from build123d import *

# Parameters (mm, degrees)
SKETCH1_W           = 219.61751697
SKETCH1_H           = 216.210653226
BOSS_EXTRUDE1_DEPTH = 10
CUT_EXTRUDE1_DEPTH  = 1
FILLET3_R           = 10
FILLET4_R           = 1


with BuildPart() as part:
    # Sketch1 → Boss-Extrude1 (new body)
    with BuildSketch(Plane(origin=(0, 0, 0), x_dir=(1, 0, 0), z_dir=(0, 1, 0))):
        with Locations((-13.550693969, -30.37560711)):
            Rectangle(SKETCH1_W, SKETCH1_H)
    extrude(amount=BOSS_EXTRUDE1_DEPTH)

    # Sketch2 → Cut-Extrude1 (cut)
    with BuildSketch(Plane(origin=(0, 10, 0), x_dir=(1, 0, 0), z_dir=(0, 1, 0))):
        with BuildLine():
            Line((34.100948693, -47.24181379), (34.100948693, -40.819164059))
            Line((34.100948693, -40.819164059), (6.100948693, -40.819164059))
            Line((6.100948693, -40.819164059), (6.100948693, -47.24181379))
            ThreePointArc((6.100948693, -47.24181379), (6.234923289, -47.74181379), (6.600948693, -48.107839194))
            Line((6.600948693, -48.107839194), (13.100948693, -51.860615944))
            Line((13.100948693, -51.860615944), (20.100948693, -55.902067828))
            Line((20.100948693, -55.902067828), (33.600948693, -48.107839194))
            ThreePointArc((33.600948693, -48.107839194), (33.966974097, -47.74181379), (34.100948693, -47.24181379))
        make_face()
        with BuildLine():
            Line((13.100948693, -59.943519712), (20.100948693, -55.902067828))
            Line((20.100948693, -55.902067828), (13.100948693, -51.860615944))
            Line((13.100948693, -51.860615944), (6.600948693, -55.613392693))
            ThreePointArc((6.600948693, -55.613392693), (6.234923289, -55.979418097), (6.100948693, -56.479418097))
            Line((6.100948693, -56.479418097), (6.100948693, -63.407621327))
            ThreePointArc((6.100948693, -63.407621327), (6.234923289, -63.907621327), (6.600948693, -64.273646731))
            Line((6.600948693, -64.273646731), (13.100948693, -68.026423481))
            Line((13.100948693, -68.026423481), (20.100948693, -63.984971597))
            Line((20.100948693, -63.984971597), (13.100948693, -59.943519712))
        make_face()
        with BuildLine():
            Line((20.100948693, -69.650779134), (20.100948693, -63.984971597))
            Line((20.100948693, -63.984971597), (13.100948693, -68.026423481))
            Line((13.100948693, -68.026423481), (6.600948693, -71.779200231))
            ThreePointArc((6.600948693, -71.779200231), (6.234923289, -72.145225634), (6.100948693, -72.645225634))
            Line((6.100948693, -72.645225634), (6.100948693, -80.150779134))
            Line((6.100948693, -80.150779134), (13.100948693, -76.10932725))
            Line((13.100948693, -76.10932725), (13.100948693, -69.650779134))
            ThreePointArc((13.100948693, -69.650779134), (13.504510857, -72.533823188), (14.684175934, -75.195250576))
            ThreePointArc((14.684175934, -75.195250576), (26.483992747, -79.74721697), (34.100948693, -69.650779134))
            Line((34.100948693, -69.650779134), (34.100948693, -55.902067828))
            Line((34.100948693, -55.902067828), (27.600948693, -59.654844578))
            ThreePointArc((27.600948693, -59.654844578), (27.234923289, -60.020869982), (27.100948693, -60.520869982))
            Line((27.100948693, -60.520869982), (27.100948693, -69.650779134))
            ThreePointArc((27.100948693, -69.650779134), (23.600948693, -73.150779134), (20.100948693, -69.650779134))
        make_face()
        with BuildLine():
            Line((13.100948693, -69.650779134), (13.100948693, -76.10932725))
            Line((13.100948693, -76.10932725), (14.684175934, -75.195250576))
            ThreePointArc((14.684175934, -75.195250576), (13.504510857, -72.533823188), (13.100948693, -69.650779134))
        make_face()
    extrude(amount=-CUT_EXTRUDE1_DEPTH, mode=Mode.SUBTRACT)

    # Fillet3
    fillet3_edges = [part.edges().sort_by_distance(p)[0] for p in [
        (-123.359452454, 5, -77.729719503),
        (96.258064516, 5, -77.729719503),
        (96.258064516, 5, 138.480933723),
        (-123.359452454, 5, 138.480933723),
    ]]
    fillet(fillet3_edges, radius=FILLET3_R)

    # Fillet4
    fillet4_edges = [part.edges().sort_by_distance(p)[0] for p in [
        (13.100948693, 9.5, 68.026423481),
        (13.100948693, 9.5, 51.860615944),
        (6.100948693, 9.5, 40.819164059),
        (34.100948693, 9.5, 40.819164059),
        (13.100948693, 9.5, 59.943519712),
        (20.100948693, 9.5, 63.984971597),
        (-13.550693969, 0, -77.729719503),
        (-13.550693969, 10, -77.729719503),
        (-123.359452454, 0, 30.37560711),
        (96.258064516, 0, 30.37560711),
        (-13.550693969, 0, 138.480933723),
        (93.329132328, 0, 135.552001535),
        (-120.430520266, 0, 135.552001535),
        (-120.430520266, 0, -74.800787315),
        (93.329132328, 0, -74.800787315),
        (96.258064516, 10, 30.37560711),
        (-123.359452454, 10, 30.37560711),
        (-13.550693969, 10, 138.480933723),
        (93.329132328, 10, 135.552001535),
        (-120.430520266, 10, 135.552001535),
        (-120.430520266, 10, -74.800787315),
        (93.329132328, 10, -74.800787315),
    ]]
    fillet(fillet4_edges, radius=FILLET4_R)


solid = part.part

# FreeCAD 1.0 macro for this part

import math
import FreeCAD as App
import Part
import Sketcher
Q = App.Units.Quantity


def edges_at(feature, points):
    """Names of the edges that pass closest to the given points."""
    edges = feature.Shape.Edges
    near = lambda p: min(range(len(edges)), key=lambda i: edges[i].distToShape(Part.Vertex(*p))[0])
    return sorted({f"Edge{near(p) + 1}" for p in points})

doc = App.newDocument("Part")
body = doc.addObject("PartDesign::Body", "Body")

# Sketch on XZ plane
sketch1 = body.newObject("Sketcher::SketchObject", "Sketch")
sketch1.AttachmentSupport = (doc.getObject("XZ_Plane"), [""])
sketch1.MapMode = "FlatFace"
sketch1.addGeometry(Part.LineSegment(App.Vector(-123.359452, -77.72972, 0), App.Vector(-123.359452, 138.480934, 0)), False)
sketch1.addGeometry(Part.LineSegment(App.Vector(-123.359452, 138.480934, 0), App.Vector(96.258065, 138.480934, 0)), False)
sketch1.addGeometry(Part.LineSegment(App.Vector(96.258065, 138.480934, 0), App.Vector(96.258065, -77.72972, 0)), False)
sketch1.addGeometry(Part.LineSegment(App.Vector(96.258065, -77.72972, 0), App.Vector(-123.359452, -77.72972, 0)), False)
sketch1.addConstraint(Sketcher.Constraint("Coincident", 0, 2, 1, 1))
sketch1.addConstraint(Sketcher.Constraint("Coincident", 1, 2, 2, 1))
sketch1.addConstraint(Sketcher.Constraint("Coincident", 2, 2, 3, 1))
sketch1.addConstraint(Sketcher.Constraint("Coincident", 3, 2, 0, 1))
sketch1.addConstraint(Sketcher.Constraint("Vertical", 0))
sketch1.addConstraint(Sketcher.Constraint("Horizontal", 1))
sketch1.addConstraint(Sketcher.Constraint("Vertical", 2))
sketch1.addConstraint(Sketcher.Constraint("Horizontal", 3))
sketch1.addConstraint(Sketcher.Constraint("DistanceX", 1, 1, 1, 2, 219.617517))
sketch1.addConstraint(Sketcher.Constraint("DistanceY", 0, 1, 0, 2, 216.210653))
sketch1.addConstraint(Sketcher.Constraint("DistanceY", 2, 2, -1, 1, 77.72972))
sketch1.addConstraint(Sketcher.Constraint("DistanceX", 0, 2, -1, 1, 123.359452))
pad1 = body.newObject("PartDesign::Pad", "Pad")
pad1.Profile = sketch1
pad1.Length = 10
pad1.Reversed = True

# Sketch on XZ plane
sketch2 = body.newObject("Sketcher::SketchObject", "Sketch001")
sketch2.AttachmentSupport = (doc.getObject("XZ_Plane"), [""])
sketch2.MapMode = "FlatFace"
sketch2.AttachmentOffset = App.Placement(App.Vector(0, 0, -10), App.Rotation())
sketch2.addGeometry(Part.LineSegment(App.Vector(34.100949, 47.241814, 0), App.Vector(34.100949, 40.819164, 0)), False)
sketch2.addGeometry(Part.LineSegment(App.Vector(34.100949, 40.819164, 0), App.Vector(6.100949, 40.819164, 0)), False)
sketch2.addGeometry(Part.LineSegment(App.Vector(6.100949, 40.819164, 0), App.Vector(6.100949, 47.241814, 0)), False)
sketch2.addGeometry(Part.ArcOfCircle(Part.Circle(App.Vector(7.100949, 47.241814, 0), App.Vector(0, 0, 1), 1), math.radians(120), math.radians(180)), False)
sketch2.addGeometry(Part.LineSegment(App.Vector(6.600949, 48.107839, 0), App.Vector(13.100949, 51.860616, 0)), False)
sketch2.addGeometry(Part.LineSegment(App.Vector(13.100949, 51.860616, 0), App.Vector(6.600949, 55.613393, 0)), False)
sketch2.addGeometry(Part.ArcOfCircle(Part.Circle(App.Vector(7.100949, 56.479418, 0), App.Vector(0, 0, 1), 1), math.radians(180), math.radians(240)), False)
sketch2.addGeometry(Part.LineSegment(App.Vector(6.100949, 56.479418, 0), App.Vector(6.100949, 63.407621, 0)), False)
sketch2.addGeometry(Part.ArcOfCircle(Part.Circle(App.Vector(7.100949, 63.407621, 0), App.Vector(0, 0, 1), 1), math.radians(120), math.radians(180)), False)
sketch2.addGeometry(Part.LineSegment(App.Vector(6.600949, 64.273647, 0), App.Vector(13.100949, 68.026423, 0)), False)
sketch2.addGeometry(Part.LineSegment(App.Vector(13.100949, 68.026423, 0), App.Vector(6.600949, 71.7792, 0)), False)
sketch2.addGeometry(Part.ArcOfCircle(Part.Circle(App.Vector(7.100949, 72.645226, 0), App.Vector(0, 0, 1), 1), math.radians(180), math.radians(240)), False)
sketch2.addGeometry(Part.LineSegment(App.Vector(6.100949, 72.645226, 0), App.Vector(6.100949, 80.150779, 0)), False)
sketch2.addGeometry(Part.LineSegment(App.Vector(6.100949, 80.150779, 0), App.Vector(13.100949, 76.109327, 0)), False)
sketch2.addGeometry(Part.LineSegment(App.Vector(13.100949, 76.109327, 0), App.Vector(14.684176, 75.195251, 0)), False)
sketch2.addGeometry(Part.ArcOfCircle(Part.Circle(App.Vector(23.600949, 69.650779, 0), App.Vector(0, 0, 1), 10.5), math.radians(0), math.radians(148.126549)), False)
sketch2.addGeometry(Part.LineSegment(App.Vector(34.100949, 69.650779, 0), App.Vector(34.100949, 55.902068, 0)), False)
sketch2.addGeometry(Part.LineSegment(App.Vector(34.100949, 55.902068, 0), App.Vector(27.600949, 59.654845, 0)), False)
sketch2.addGeometry(Part.ArcOfCircle(Part.Circle(App.Vector(28.100949, 60.52087, 0), App.Vector(0, 0, 1), 1), math.radians(180), math.radians(240)), False)
sketch2.addGeometry(Part.LineSegment(App.Vector(27.100949, 60.52087, 0), App.Vector(27.100949, 69.650779, 0)), False)
sketch2.addGeometry(Part.ArcOfCircle(Part.Circle(App.Vector(23.600949, 69.650779, 0), App.Vector(0, 0, 1), 3.5), math.radians(0), math.radians(180)), False)
sketch2.addGeometry(Part.LineSegment(App.Vector(20.100949, 69.650779, 0), App.Vector(20.100949, 63.984972, 0)), False)
sketch2.addGeometry(Part.LineSegment(App.Vector(20.100949, 63.984972, 0), App.Vector(13.100949, 59.94352, 0)), False)
sketch2.addGeometry(Part.LineSegment(App.Vector(13.100949, 59.94352, 0), App.Vector(20.100949, 55.902068, 0)), False)
sketch2.addGeometry(Part.LineSegment(App.Vector(20.100949, 55.902068, 0), App.Vector(33.600949, 48.107839, 0)), False)
sketch2.addGeometry(Part.ArcOfCircle(Part.Circle(App.Vector(33.100949, 47.241814, 0), App.Vector(0, 0, 1), 1), math.radians(0), math.radians(60)), False)
sketch2.addConstraint(Sketcher.Constraint("Coincident", 0, 2, 1, 1))
sketch2.addConstraint(Sketcher.Constraint("Coincident", 1, 2, 2, 1))
sketch2.addConstraint(Sketcher.Constraint("Tangent", 2, 2, 3, 2))
sketch2.addConstraint(Sketcher.Constraint("Tangent", 3, 1, 4, 1))
sketch2.addConstraint(Sketcher.Constraint("Coincident", 4, 2, 5, 1))
sketch2.addConstraint(Sketcher.Constraint("Tangent", 5, 2, 6, 2))
sketch2.addConstraint(Sketcher.Constraint("Tangent", 6, 1, 7, 1))
sketch2.addConstraint(Sketcher.Constraint("Tangent", 7, 2, 8, 2))
sketch2.addConstraint(Sketcher.Constraint("Tangent", 8, 1, 9, 1))
sketch2.addConstraint(Sketcher.Constraint("Coincident", 9, 2, 10, 1))
sketch2.addConstraint(Sketcher.Constraint("Tangent", 10, 2, 11, 2))
sketch2.addConstraint(Sketcher.Constraint("Tangent", 11, 1, 12, 1))
sketch2.addConstraint(Sketcher.Constraint("Coincident", 12, 2, 13, 1))
sketch2.addConstraint(Sketcher.Constraint("Coincident", 13, 2, 14, 1))
sketch2.addConstraint(Sketcher.Constraint("Coincident", 14, 2, 15, 2))
sketch2.addConstraint(Sketcher.Constraint("Tangent", 15, 1, 16, 1))
sketch2.addConstraint(Sketcher.Constraint("Coincident", 16, 2, 17, 1))
sketch2.addConstraint(Sketcher.Constraint("Tangent", 17, 2, 18, 2))
sketch2.addConstraint(Sketcher.Constraint("Tangent", 18, 1, 19, 1))
sketch2.addConstraint(Sketcher.Constraint("Tangent", 19, 2, 20, 1))
sketch2.addConstraint(Sketcher.Constraint("Tangent", 20, 2, 21, 1))
sketch2.addConstraint(Sketcher.Constraint("Coincident", 21, 2, 22, 1))
sketch2.addConstraint(Sketcher.Constraint("Coincident", 22, 2, 23, 1))
sketch2.addConstraint(Sketcher.Constraint("Coincident", 23, 2, 24, 1))
sketch2.addConstraint(Sketcher.Constraint("Tangent", 24, 2, 25, 2))
sketch2.addConstraint(Sketcher.Constraint("Tangent", 25, 1, 0, 1))
sketch2.addConstraint(Sketcher.Constraint("Vertical", 0))
sketch2.addConstraint(Sketcher.Constraint("Horizontal", 1))
sketch2.addConstraint(Sketcher.Constraint("Vertical", 2))
sketch2.addConstraint(Sketcher.Constraint("Vertical", 7))
sketch2.addConstraint(Sketcher.Constraint("Vertical", 12))
sketch2.addConstraint(Sketcher.Constraint("Vertical", 16))
sketch2.addConstraint(Sketcher.Constraint("Vertical", 19))
sketch2.addConstraint(Sketcher.Constraint("Vertical", 21))
sketch2.addConstraint(Sketcher.Constraint("Coincident", 20, 3, 15, 3))
sketch2.addConstraint(Sketcher.Constraint("Equal", 3, 6))
sketch2.addConstraint(Sketcher.Constraint("Equal", 6, 8))
sketch2.addConstraint(Sketcher.Constraint("Equal", 8, 11))
sketch2.addConstraint(Sketcher.Constraint("Equal", 11, 18))
sketch2.addConstraint(Sketcher.Constraint("Equal", 18, 25))
sketch2.addConstraint(Sketcher.Constraint("Parallel", 4, 9))
sketch2.addConstraint(Sketcher.Constraint("Parallel", 5, 10))
sketch2.addConstraint(Sketcher.Constraint("Parallel", 10, 13))
sketch2.addConstraint(Sketcher.Constraint("Parallel", 13, 14))
sketch2.addConstraint(Sketcher.Constraint("Parallel", 14, 17))
sketch2.addConstraint(Sketcher.Constraint("Parallel", 9, 22))
sketch2.addConstraint(Sketcher.Constraint("Parallel", 17, 23))
sketch2.addConstraint(Sketcher.Constraint("Parallel", 23, 24))
sketch2.addConstraint(Sketcher.Constraint("Horizontal", 3, 3, 25, 3))
sketch2.addConstraint(Sketcher.Constraint("Horizontal", 16, 2, 23, 2))
sketch2.addConstraint(Sketcher.Constraint("Horizontal", 3, 1, 24, 2))
sketch2.addConstraint(Sketcher.Constraint("Vertical", 3, 3, 6, 3))
sketch2.addConstraint(Sketcher.Constraint("Vertical", 8, 3, 11, 3))
sketch2.addConstraint(Sketcher.Constraint("Vertical", 4, 2, 9, 2))
sketch2.addConstraint(Sketcher.Constraint("Vertical", 9, 2, 13, 2))
sketch2.addConstraint(Sketcher.Constraint("Vertical", 0, 2, 15, 1))
sketch2.addConstraint(Sketcher.Constraint("Vertical", 13, 2, 22, 2))
sketch2.addConstraint(Sketcher.Constraint("Vertical", 21, 2, 23, 2))
sketch2.addConstraint(Sketcher.Constraint("Equal", 10, 17))
sketch2.addConstraint(Sketcher.Constraint("Equal", 13, 22))
sketch2.addConstraint(Sketcher.Constraint("Radius", 3, 1.0))
sketch2.addConstraint(Sketcher.Constraint("Radius", 15, 10.5))
sketch2.addConstraint(Sketcher.Constraint("Radius", 20, 3.5))
sketch2.addConstraint(Sketcher.Constraint("Angle", 4, Q("30 deg")))
sketch2.addConstraint(Sketcher.Constraint("DistanceY", 0, 2, 0, 1, 6.42265))
sketch2.addConstraint(Sketcher.Constraint("DistanceY", 16, 2, 16, 1, 13.748711))
sketch2.addConstraint(Sketcher.Constraint("DistanceY", -1, 1, 10, 2, 71.7792))
sketch2.addConstraint(Sketcher.Constraint("DistanceY", 11, 3, 13, 2, 3.464102))
sketch2.addConstraint(Sketcher.Constraint("DistanceY", 22, 2, 8, 3, 3.464102))
sketch2.addConstraint(Sketcher.Constraint("DistanceX", -1, 1, 3, 3, 7.100949))
pocket1 = body.newObject("PartDesign::Pocket", "Pocket")
pocket1.Profile = sketch2
pocket1.Length = 1
pocket1.Reversed = True
doc.recompute()

fillet = body.newObject("PartDesign::Fillet", "Fillet")
fillet.Base = (pocket1, edges_at(pocket1, [
    (-123.359, 5, -77.73),
    (96.258, 5, -77.73),
    (96.258, 5, 138.481),
    (-123.359, 5, 138.481),
]))
fillet.Radius = 10
doc.recompute()

fillet2 = body.newObject("PartDesign::Fillet", "Fillet001")
fillet2.Base = (fillet, edges_at(fillet, [
    (13.101, 9.5, 68.026),
    (13.101, 9.5, 51.861),
    (6.101, 9.5, 40.819),
    (34.101, 9.5, 40.819),
    (13.101, 9.5, 59.944),
    (20.101, 9.5, 63.985),
    (-13.551, 0, -77.73),
    (-13.551, 10, -77.73),
    (-123.359, 0, 30.376),
    (96.258, 0, 30.376),
    (-13.551, 0, 138.481),
    (93.329, 0, 135.552),
    (-120.431, 0, 135.552),
    (-120.431, 0, -74.801),
    (93.329, 0, -74.801),
    (96.258, 10, 30.376),
    (-123.359, 10, 30.376),
    (-13.551, 10, 138.481),
    (93.329, 10, 135.552),
    (-120.431, 10, 135.552),
    (-120.431, 10, -74.801),
    (93.329, 10, -74.801),
]))
fillet2.Radius = 1

doc.recompute()
